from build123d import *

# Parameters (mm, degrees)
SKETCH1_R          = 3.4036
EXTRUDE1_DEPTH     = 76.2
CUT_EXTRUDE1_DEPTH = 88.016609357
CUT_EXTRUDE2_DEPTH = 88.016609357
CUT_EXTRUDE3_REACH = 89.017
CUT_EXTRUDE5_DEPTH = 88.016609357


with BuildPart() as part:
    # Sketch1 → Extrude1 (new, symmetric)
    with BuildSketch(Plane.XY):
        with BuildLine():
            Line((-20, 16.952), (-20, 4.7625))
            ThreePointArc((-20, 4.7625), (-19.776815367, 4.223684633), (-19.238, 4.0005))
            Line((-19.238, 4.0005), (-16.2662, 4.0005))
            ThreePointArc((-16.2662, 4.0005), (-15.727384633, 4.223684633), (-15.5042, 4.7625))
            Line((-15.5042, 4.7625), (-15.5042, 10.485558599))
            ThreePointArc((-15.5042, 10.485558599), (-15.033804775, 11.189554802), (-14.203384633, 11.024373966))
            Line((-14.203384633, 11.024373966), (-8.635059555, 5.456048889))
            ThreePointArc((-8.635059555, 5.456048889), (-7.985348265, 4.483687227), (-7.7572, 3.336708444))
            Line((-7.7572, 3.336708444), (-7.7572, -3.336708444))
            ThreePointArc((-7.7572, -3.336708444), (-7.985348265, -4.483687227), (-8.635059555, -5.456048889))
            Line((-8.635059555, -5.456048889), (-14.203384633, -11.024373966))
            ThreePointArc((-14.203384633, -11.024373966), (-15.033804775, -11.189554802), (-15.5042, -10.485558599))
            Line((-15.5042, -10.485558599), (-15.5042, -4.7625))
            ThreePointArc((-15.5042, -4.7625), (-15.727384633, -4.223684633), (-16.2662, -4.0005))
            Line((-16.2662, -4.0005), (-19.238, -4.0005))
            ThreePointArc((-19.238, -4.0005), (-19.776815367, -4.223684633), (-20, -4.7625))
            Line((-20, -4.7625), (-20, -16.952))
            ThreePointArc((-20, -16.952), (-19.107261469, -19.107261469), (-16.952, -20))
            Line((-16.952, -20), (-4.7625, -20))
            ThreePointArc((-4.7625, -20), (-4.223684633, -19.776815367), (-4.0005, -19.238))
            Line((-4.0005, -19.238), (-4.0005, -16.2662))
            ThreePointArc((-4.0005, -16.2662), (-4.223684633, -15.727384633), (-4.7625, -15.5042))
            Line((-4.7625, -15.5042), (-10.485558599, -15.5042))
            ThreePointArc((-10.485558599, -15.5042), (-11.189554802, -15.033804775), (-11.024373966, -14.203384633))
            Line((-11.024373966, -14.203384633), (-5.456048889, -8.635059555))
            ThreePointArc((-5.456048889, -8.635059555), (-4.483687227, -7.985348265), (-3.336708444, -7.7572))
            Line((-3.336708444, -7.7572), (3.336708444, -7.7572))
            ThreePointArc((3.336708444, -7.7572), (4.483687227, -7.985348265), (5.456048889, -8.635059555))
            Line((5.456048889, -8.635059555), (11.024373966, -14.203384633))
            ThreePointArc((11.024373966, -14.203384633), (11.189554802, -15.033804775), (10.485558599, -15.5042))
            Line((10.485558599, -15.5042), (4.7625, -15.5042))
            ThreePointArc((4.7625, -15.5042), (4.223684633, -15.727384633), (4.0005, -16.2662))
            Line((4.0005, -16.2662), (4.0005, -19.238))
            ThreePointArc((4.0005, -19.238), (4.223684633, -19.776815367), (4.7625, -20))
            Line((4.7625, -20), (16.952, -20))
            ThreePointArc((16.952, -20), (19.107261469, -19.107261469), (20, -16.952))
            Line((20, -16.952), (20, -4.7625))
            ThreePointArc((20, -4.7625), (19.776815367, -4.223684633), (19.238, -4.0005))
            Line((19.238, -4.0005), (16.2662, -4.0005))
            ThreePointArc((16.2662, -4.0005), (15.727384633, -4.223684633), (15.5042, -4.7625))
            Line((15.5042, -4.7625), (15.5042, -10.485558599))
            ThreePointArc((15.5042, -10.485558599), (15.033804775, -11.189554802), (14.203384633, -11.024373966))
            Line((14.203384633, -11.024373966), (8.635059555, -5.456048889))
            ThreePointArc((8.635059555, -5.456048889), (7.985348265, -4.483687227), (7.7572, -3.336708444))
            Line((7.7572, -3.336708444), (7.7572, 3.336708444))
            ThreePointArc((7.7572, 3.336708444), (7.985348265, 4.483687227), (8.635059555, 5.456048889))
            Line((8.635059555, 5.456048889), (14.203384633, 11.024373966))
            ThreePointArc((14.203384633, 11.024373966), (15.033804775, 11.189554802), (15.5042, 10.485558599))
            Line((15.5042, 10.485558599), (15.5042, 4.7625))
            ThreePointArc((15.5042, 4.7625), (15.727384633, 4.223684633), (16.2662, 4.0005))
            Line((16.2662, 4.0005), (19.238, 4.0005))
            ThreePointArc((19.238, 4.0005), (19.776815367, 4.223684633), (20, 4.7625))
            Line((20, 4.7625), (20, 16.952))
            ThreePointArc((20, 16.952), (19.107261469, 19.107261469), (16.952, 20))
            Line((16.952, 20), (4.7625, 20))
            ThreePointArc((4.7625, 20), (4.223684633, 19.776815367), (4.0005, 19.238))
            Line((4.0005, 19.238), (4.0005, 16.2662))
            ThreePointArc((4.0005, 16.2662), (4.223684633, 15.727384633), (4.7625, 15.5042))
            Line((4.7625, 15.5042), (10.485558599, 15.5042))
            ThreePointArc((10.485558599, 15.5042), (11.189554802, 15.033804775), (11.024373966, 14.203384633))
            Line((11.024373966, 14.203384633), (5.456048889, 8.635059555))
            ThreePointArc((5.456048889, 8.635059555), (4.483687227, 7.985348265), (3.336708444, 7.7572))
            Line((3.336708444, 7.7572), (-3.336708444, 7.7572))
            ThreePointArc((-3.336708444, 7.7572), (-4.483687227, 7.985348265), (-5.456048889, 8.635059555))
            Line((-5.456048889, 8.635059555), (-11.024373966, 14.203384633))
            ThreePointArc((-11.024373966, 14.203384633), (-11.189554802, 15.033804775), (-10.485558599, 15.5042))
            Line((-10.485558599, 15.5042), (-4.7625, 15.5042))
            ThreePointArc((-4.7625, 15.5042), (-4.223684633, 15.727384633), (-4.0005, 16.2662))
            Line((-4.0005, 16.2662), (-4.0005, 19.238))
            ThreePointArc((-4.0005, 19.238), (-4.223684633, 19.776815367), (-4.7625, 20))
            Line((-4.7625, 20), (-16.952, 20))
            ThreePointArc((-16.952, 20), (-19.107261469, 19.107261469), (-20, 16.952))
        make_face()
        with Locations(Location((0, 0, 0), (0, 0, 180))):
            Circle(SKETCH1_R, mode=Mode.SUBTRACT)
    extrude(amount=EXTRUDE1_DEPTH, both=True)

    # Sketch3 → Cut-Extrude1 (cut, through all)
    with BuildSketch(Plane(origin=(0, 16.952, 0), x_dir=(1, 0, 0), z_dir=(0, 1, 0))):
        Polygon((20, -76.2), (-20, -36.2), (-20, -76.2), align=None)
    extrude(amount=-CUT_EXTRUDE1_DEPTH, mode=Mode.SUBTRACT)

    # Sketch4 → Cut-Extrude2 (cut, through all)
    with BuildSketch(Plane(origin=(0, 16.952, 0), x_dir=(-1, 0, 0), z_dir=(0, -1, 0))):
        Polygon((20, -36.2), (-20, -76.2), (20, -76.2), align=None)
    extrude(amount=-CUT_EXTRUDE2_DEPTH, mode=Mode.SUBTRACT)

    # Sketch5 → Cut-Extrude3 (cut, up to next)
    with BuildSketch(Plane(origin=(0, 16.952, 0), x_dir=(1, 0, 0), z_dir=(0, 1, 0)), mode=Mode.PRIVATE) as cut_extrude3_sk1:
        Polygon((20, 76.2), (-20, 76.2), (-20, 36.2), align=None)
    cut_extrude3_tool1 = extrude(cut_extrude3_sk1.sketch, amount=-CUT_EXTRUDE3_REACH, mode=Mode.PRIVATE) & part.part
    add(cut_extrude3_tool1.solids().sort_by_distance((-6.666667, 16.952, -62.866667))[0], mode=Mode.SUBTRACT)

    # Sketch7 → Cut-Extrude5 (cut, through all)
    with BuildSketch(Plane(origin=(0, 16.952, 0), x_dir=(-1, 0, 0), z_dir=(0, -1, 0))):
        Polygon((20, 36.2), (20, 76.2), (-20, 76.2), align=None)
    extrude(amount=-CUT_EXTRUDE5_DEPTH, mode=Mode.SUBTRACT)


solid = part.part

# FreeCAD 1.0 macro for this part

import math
import FreeCAD as App
import Part
import Sketcher

V = App.Vector
Q = App.Units.Quantity


def add_polygon(sketch, points):
    """Adds a closed chain of lines whose ends are joined by coincident constraints."""
    first, n = sketch.GeometryCount, len(points)
    for a, b in zip(points, points[1:] + points[:1]):
        sketch.addGeometry(Part.LineSegment(App.Vector(*a, 0), App.Vector(*b, 0)), False)
    for i in range(n):
        sketch.addConstraint(Sketcher.Constraint("Coincident", first + i, 2, first + (i + 1) % n, 1))

doc = App.newDocument("Part")
body = doc.addObject("PartDesign::Body", "Body")

# Sketch on XY plane
sketch1 = body.newObject("Sketcher::SketchObject", "Sketch")
sketch1.AttachmentSupport = (doc.getObject("XY_Plane"), [""])
sketch1.MapMode = "FlatFace"
sketch1.addGeometry([
    Part.LineSegment(V(-20, 16.952, 0), V(-20, 4.7625, 0)),  # 0
    Part.ArcOfCircle(Part.Circle(V(-19.238, 4.7625, 0), V(0, 0, 1), 0.762), math.radians(-180), math.radians(-90)),  # 1
    Part.LineSegment(V(-19.238, 4.0005, 0), V(-16.2662, 4.0005, 0)),  # 2
    Part.ArcOfCircle(Part.Circle(V(-16.2662, 4.7625, 0), V(0, 0, 1), 0.762), math.radians(-90), math.radians(0)),  # 3
    Part.LineSegment(V(-15.5042, 4.7625, 0), V(-15.5042, 10.485559, 0)),  # 4
    Part.ArcOfCircle(Part.Circle(V(-14.7422, 10.485559, 0), V(0, 0, 1), 0.762), math.radians(45), math.radians(180)),  # 5
    Part.LineSegment(V(-14.203385, 11.024374, 0), V(-8.63506, 5.456049, 0)),  # 6
    Part.ArcOfCircle(Part.Circle(V(-10.7544, 3.336708, 0), V(0, 0, 1), 2.9972), math.radians(0), math.radians(45)),  # 7
    Part.LineSegment(V(-7.7572, 3.336708, 0), V(-7.7572, -3.336708, 0)),  # 8
    Part.ArcOfCircle(Part.Circle(V(-10.7544, -3.336708, 0), V(0, 0, 1), 2.9972), math.radians(-45), math.radians(0)),  # 9
    Part.LineSegment(V(-8.63506, -5.456049, 0), V(-14.203385, -11.024374, 0)),  # 10
    Part.ArcOfCircle(Part.Circle(V(-14.7422, -10.485559, 0), V(0, 0, 1), 0.762), math.radians(-180), math.radians(-45)),  # 11
    Part.LineSegment(V(-15.5042, -10.485559, 0), V(-15.5042, -4.7625, 0)),  # 12
    Part.ArcOfCircle(Part.Circle(V(-16.2662, -4.7625, 0), V(0, 0, 1), 0.762), math.radians(0), math.radians(90)),  # 13
    Part.LineSegment(V(-16.2662, -4.0005, 0), V(-19.238, -4.0005, 0)),  # 14
    Part.ArcOfCircle(Part.Circle(V(-19.238, -4.7625, 0), V(0, 0, 1), 0.762), math.radians(90), math.radians(180)),  # 15
    Part.LineSegment(V(-20, -4.7625, 0), V(-20, -16.952, 0)),  # 16
    Part.ArcOfCircle(Part.Circle(V(-16.952, -16.952, 0), V(0, 0, 1), 3.048), math.radians(180), math.radians(270)),  # 17
    Part.LineSegment(V(-16.952, -20, 0), V(-4.7625, -20, 0)),  # 18
    Part.ArcOfCircle(Part.Circle(V(-4.7625, -19.238, 0), V(0, 0, 1), 0.762), math.radians(-90), math.radians(0)),  # 19
    Part.LineSegment(V(-4.0005, -19.238, 0), V(-4.0005, -16.2662, 0)),  # 20
    Part.ArcOfCircle(Part.Circle(V(-4.7625, -16.2662, 0), V(0, 0, 1), 0.762), math.radians(0), math.radians(90)),  # 21
    Part.LineSegment(V(-4.7625, -15.5042, 0), V(-10.485559, -15.5042, 0)),  # 22
    Part.ArcOfCircle(Part.Circle(V(-10.485559, -14.7422, 0), V(0, 0, 1), 0.762), math.radians(135), math.radians(270)),  # 23
    Part.LineSegment(V(-11.024374, -14.203385, 0), V(-5.456049, -8.63506, 0)),  # 24
    Part.ArcOfCircle(Part.Circle(V(-3.336708, -10.7544, 0), V(0, 0, 1), 2.9972), math.radians(90), math.radians(135)),  # 25
    Part.LineSegment(V(-3.336708, -7.7572, 0), V(3.336708, -7.7572, 0)),  # 26
    Part.ArcOfCircle(Part.Circle(V(3.336708, -10.7544, 0), V(0, 0, 1), 2.9972), math.radians(45), math.radians(90)),  # 27
    Part.LineSegment(V(5.456049, -8.63506, 0), V(11.024374, -14.203385, 0)),  # 28
    Part.ArcOfCircle(Part.Circle(V(10.485559, -14.7422, 0), V(0, 0, 1), 0.762), math.radians(-90), math.radians(45)),  # 29
    Part.LineSegment(V(10.485559, -15.5042, 0), V(4.7625, -15.5042, 0)),  # 30
    Part.ArcOfCircle(Part.Circle(V(4.7625, -16.2662, 0), V(0, 0, 1), 0.762), math.radians(90), math.radians(180)),  # 31
    Part.LineSegment(V(4.0005, -16.2662, 0), V(4.0005, -19.238, 0)),  # 32
    Part.ArcOfCircle(Part.Circle(V(4.7625, -19.238, 0), V(0, 0, 1), 0.762), math.radians(-180), math.radians(-90)),  # 33
    Part.LineSegment(V(4.7625, -20, 0), V(16.952, -20, 0)),  # 34
    Part.ArcOfCircle(Part.Circle(V(16.952, -16.952, 0), V(0, 0, 1), 3.048), math.radians(-90), math.radians(0)),  # 35
    Part.LineSegment(V(20, -16.952, 0), V(20, -4.7625, 0)),  # 36
    Part.ArcOfCircle(Part.Circle(V(19.238, -4.7625, 0), V(0, 0, 1), 0.762), math.radians(0), math.radians(90)),  # 37
    Part.LineSegment(V(19.238, -4.0005, 0), V(16.2662, -4.0005, 0)),  # 38
    Part.ArcOfCircle(Part.Circle(V(16.2662, -4.7625, 0), V(0, 0, 1), 0.762), math.radians(90), math.radians(180)),  # 39
    Part.LineSegment(V(15.5042, -4.7625, 0), V(15.5042, -10.485559, 0)),  # 40
    Part.ArcOfCircle(Part.Circle(V(14.7422, -10.485559, 0), V(0, 0, 1), 0.762), math.radians(-135), math.radians(0)),  # 41
    Part.LineSegment(V(14.203385, -11.024374, 0), V(8.63506, -5.456049, 0)),  # 42
    Part.ArcOfCircle(Part.Circle(V(10.7544, -3.336708, 0), V(0, 0, 1), 2.9972), math.radians(-180), math.radians(-135)),  # 43
    Part.LineSegment(V(7.7572, -3.336708, 0), V(7.7572, 3.336708, 0)),  # 44
    Part.ArcOfCircle(Part.Circle(V(10.7544, 3.336708, 0), V(0, 0, 1), 2.9972), math.radians(135), math.radians(180)),  # 45
    Part.LineSegment(V(8.63506, 5.456049, 0), V(14.203385, 11.024374, 0)),  # 46
    Part.ArcOfCircle(Part.Circle(V(14.7422, 10.485559, 0), V(0, 0, 1), 0.762), math.radians(0), math.radians(135)),  # 47
    Part.LineSegment(V(15.5042, 10.485559, 0), V(15.5042, 4.7625, 0)),  # 48
    Part.ArcOfCircle(Part.Circle(V(16.2662, 4.7625, 0), V(0, 0, 1), 0.762), math.radians(-180), math.radians(-90)),  # 49
    Part.LineSegment(V(16.2662, 4.0005, 0), V(19.238, 4.0005, 0)),  # 50
    Part.ArcOfCircle(Part.Circle(V(19.238, 4.7625, 0), V(0, 0, 1), 0.762), math.radians(-90), math.radians(0)),  # 51
    Part.LineSegment(V(20, 4.7625, 0), V(20, 16.952, 0)),  # 52
    Part.ArcOfCircle(Part.Circle(V(16.952, 16.952, 0), V(0, 0, 1), 3.048), math.radians(0), math.radians(90)),  # 53
    Part.LineSegment(V(16.952, 20, 0), V(4.7625, 20, 0)),  # 54
    Part.ArcOfCircle(Part.Circle(V(4.7625, 19.238, 0), V(0, 0, 1), 0.762), math.radians(90), math.radians(180)),  # 55
    Part.LineSegment(V(4.0005, 19.238, 0), V(4.0005, 16.2662, 0)),  # 56
    Part.ArcOfCircle(Part.Circle(V(4.7625, 16.2662, 0), V(0, 0, 1), 0.762), math.radians(-180), math.radians(-90)),  # 57
    Part.LineSegment(V(4.7625, 15.5042, 0), V(10.485559, 15.5042, 0)),  # 58
    Part.ArcOfCircle(Part.Circle(V(10.485559, 14.7422, 0), V(0, 0, 1), 0.762), math.radians(-45), math.radians(90)),  # 59
    Part.LineSegment(V(11.024374, 14.203385, 0), V(5.456049, 8.63506, 0)),  # 60
    Part.ArcOfCircle(Part.Circle(V(3.336708, 10.7544, 0), V(0, 0, 1), 2.9972), math.radians(-90), math.radians(-45)),  # 61
    Part.LineSegment(V(3.336708, 7.7572, 0), V(-3.336708, 7.7572, 0)),  # 62
    Part.ArcOfCircle(Part.Circle(V(-3.336708, 10.7544, 0), V(0, 0, 1), 2.9972), math.radians(-135), math.radians(-90)),  # 63
    Part.LineSegment(V(-5.456049, 8.63506, 0), V(-11.024374, 14.203385, 0)),  # 64
    Part.ArcOfCircle(Part.Circle(V(-10.485559, 14.7422, 0), V(0, 0, 1), 0.762), math.radians(90), math.radians(225)),  # 65
    Part.LineSegment(V(-10.485559, 15.5042, 0), V(-4.7625, 15.5042, 0)),  # 66
    Part.ArcOfCircle(Part.Circle(V(-4.7625, 16.2662, 0), V(0, 0, 1), 0.762), math.radians(-90), math.radians(0)),  # 67
    Part.LineSegment(V(-4.0005, 16.2662, 0), V(-4.0005, 19.238, 0)),  # 68
    Part.ArcOfCircle(Part.Circle(V(-4.7625, 19.238, 0), V(0, 0, 1), 0.762), math.radians(0), math.radians(90)),  # 69
    Part.LineSegment(V(-4.7625, 20, 0), V(-16.952, 20, 0)),  # 70
    Part.ArcOfCircle(Part.Circle(V(-16.952, 16.952, 0), V(0, 0, 1), 3.048), math.radians(90), math.radians(180)),  # 71
    Part.Circle(V(0, 0, 0), V(0, 0, 1), 3.4036),  # 72
], False)
sketch1.addConstraint([
    Sketcher.Constraint("Tangent", 0, 2, 1, 1),
    Sketcher.Constraint("Tangent", 1, 2, 2, 1),
    Sketcher.Constraint("Tangent", 2, 2, 3, 1),
    Sketcher.Constraint("Tangent", 3, 2, 4, 1),
    Sketcher.Constraint("Tangent", 4, 2, 5, 2),
    Sketcher.Constraint("Tangent", 5, 1, 6, 1),
    Sketcher.Constraint("Tangent", 6, 2, 7, 2),
    Sketcher.Constraint("Tangent", 7, 1, 8, 1),
    Sketcher.Constraint("Tangent", 8, 2, 9, 2),
    Sketcher.Constraint("Tangent", 9, 1, 10, 1),
    Sketcher.Constraint("Tangent", 10, 2, 11, 2),
    Sketcher.Constraint("Tangent", 11, 1, 12, 1),
    Sketcher.Constraint("Tangent", 12, 2, 13, 1),
    Sketcher.Constraint("Tangent", 13, 2, 14, 1),
    Sketcher.Constraint("Tangent", 14, 2, 15, 1),
    Sketcher.Constraint("Tangent", 15, 2, 16, 1),
    Sketcher.Constraint("Tangent", 16, 2, 17, 1),
    Sketcher.Constraint("Tangent", 17, 2, 18, 1),
    Sketcher.Constraint("Tangent", 18, 2, 19, 1),
    Sketcher.Constraint("Tangent", 19, 2, 20, 1),
    Sketcher.Constraint("Tangent", 20, 2, 21, 1),
    Sketcher.Constraint("Tangent", 21, 2, 22, 1),
    Sketcher.Constraint("Tangent", 22, 2, 23, 2),
    Sketcher.Constraint("Tangent", 23, 1, 24, 1),
    Sketcher.Constraint("Tangent", 24, 2, 25, 2),
    Sketcher.Constraint("Tangent", 25, 1, 26, 1),
    Sketcher.Constraint("Tangent", 26, 2, 27, 2),
    Sketcher.Constraint("Tangent", 27, 1, 28, 1),
    Sketcher.Constraint("Tangent", 28, 2, 29, 2),
    Sketcher.Constraint("Tangent", 29, 1, 30, 1),
    Sketcher.Constraint("Tangent", 30, 2, 31, 1),
    Sketcher.Constraint("Tangent", 31, 2, 32, 1),
    Sketcher.Constraint("Tangent", 32, 2, 33, 1),
    Sketcher.Constraint("Tangent", 33, 2, 34, 1),
    Sketcher.Constraint("Tangent", 34, 2, 35, 1),
    Sketcher.Constraint("Tangent", 35, 2, 36, 1),
    Sketcher.Constraint("Tangent", 36, 2, 37, 1),
    Sketcher.Constraint("Tangent", 37, 2, 38, 1),
    Sketcher.Constraint("Tangent", 38, 2, 39, 1),
    Sketcher.Constraint("Tangent", 39, 2, 40, 1),
    Sketcher.Constraint("Tangent", 40, 2, 41, 2),
    Sketcher.Constraint("Tangent", 41, 1, 42, 1),
    Sketcher.Constraint("Tangent", 42, 2, 43, 2),
    Sketcher.Constraint("Tangent", 43, 1, 44, 1),
    Sketcher.Constraint("Tangent", 44, 2, 45, 2),
    Sketcher.Constraint("Tangent", 45, 1, 46, 1),
    Sketcher.Constraint("Tangent", 46, 2, 47, 2),
    Sketcher.Constraint("Tangent", 47, 1, 48, 1),
    Sketcher.Constraint("Tangent", 48, 2, 49, 1),
    Sketcher.Constraint("Tangent", 49, 2, 50, 1),
    Sketcher.Constraint("Tangent", 50, 2, 51, 1),
    Sketcher.Constraint("Tangent", 51, 2, 52, 1),
    Sketcher.Constraint("Tangent", 52, 2, 53, 1),
    Sketcher.Constraint("Tangent", 53, 2, 54, 1),
    Sketcher.Constraint("Tangent", 54, 2, 55, 1),
    Sketcher.Constraint("Tangent", 55, 2, 56, 1),
    Sketcher.Constraint("Tangent", 56, 2, 57, 1),
    Sketcher.Constraint("Tangent", 57, 2, 58, 1),
    Sketcher.Constraint("Tangent", 58, 2, 59, 2),
    Sketcher.Constraint("Tangent", 59, 1, 60, 1),
    Sketcher.Constraint("Tangent", 60, 2, 61, 2),
    Sketcher.Constraint("Tangent", 61, 1, 62, 1),
    Sketcher.Constraint("Tangent", 62, 2, 63, 2),
    Sketcher.Constraint("Tangent", 63, 1, 64, 1),
    Sketcher.Constraint("Tangent", 64, 2, 65, 2),
    Sketcher.Constraint("Tangent", 65, 1, 66, 1),
    Sketcher.Constraint("Tangent", 66, 2, 67, 1),
    Sketcher.Constraint("Tangent", 67, 2, 68, 1),
    Sketcher.Constraint("Tangent", 68, 2, 69, 1),
    Sketcher.Constraint("Tangent", 69, 2, 70, 1),
    Sketcher.Constraint("Tangent", 70, 2, 71, 1),
    Sketcher.Constraint("Tangent", 71, 2, 0, 1),
    Sketcher.Constraint("Vertical", 0),
    Sketcher.Constraint("Horizontal", 2),
    Sketcher.Constraint("Vertical", 4),
    Sketcher.Constraint("Vertical", 8),
    Sketcher.Constraint("Vertical", 12),
    Sketcher.Constraint("Horizontal", 14),
    Sketcher.Constraint("Vertical", 16),
    Sketcher.Constraint("Horizontal", 18),
    Sketcher.Constraint("Vertical", 20),
    Sketcher.Constraint("Horizontal", 22),
    Sketcher.Constraint("Horizontal", 26),
    Sketcher.Constraint("Horizontal", 30),
    Sketcher.Constraint("Vertical", 32),
    Sketcher.Constraint("Horizontal", 34),
    Sketcher.Constraint("Vertical", 36),
    Sketcher.Constraint("Horizontal", 38),
    Sketcher.Constraint("Vertical", 40),
    Sketcher.Constraint("Vertical", 44),
    Sketcher.Constraint("Vertical", 48),
    Sketcher.Constraint("Horizontal", 50),
    Sketcher.Constraint("Vertical", 52),
    Sketcher.Constraint("Horizontal", 54),
    Sketcher.Constraint("Vertical", 56),
    Sketcher.Constraint("Horizontal", 58),
    Sketcher.Constraint("Horizontal", 62),
    Sketcher.Constraint("Horizontal", 66),
    Sketcher.Constraint("Vertical", 68),
    Sketcher.Constraint("Horizontal", 70),
    Sketcher.Constraint("Coincident", 72, 3, -1, 1),
    Sketcher.Constraint("Equal", 1, 3),
    Sketcher.Constraint("Equal", 3, 5),
    Sketcher.Constraint("Equal", 7, 9),
    Sketcher.Constraint("Equal", 5, 11),
    Sketcher.Constraint("Equal", 11, 13),
    Sketcher.Constraint("Equal", 13, 15),
    Sketcher.Constraint("Equal", 15, 19),
    Sketcher.Constraint("Equal", 19, 21),
    Sketcher.Constraint("Equal", 21, 23),
    Sketcher.Constraint("Equal", 9, 25),
    Sketcher.Constraint("Equal", 25, 27),
    Sketcher.Constraint("Equal", 23, 29),
    Sketcher.Constraint("Equal", 29, 31),
    Sketcher.Constraint("Equal", 31, 33),
    Sketcher.Constraint("Equal", 17, 35),
    Sketcher.Constraint("Equal", 33, 37),
    Sketcher.Constraint("Equal", 37, 39),
    Sketcher.Constraint("Equal", 39, 41),
    Sketcher.Constraint("Equal", 27, 43),
    Sketcher.Constraint("Equal", 43, 45),
    Sketcher.Constraint("Equal", 41, 47),
    Sketcher.Constraint("Equal", 47, 49),
    Sketcher.Constraint("Equal", 49, 51),
    Sketcher.Constraint("Equal", 35, 53),
    Sketcher.Constraint("Equal", 51, 55),
    Sketcher.Constraint("Equal", 55, 57),
    Sketcher.Constraint("Equal", 57, 59),
    Sketcher.Constraint("Equal", 45, 61),
    Sketcher.Constraint("Equal", 61, 63),
    Sketcher.Constraint("Equal", 59, 65),
    Sketcher.Constraint("Equal", 65, 67),
    Sketcher.Constraint("Equal", 67, 69),
    Sketcher.Constraint("Equal", 53, 71),
    Sketcher.Constraint("Symmetric", 1, 3, 37, 3, -1, 1),
    Sketcher.Constraint("Symmetric", 5, 3, 41, 3, -1, 1),
    Sketcher.Constraint("Symmetric", 7, 3, 43, 3, -1, 1),
    Sketcher.Constraint("Symmetric", 11, 3, 47, 3, -1, 1),
    Sketcher.Constraint("Symmetric", 15, 3, 51, 3, -1, 1),
    Sketcher.Constraint("Symmetric", 19, 3, 55, 3, -1, 1),
    Sketcher.Constraint("Symmetric", 23, 3, 59, 3, -1, 1),
    Sketcher.Constraint("Symmetric", 25, 3, 61, 3, -1, 1),
    Sketcher.Constraint("Symmetric", 29, 3, 65, 3, -1, 1),
    Sketcher.Constraint("Symmetric", 33, 3, 69, 3, -1, 1),
    Sketcher.Constraint("Symmetric", 23, 3, 29, 3, -2),
    Sketcher.Constraint("Symmetric", 19, 3, 33, 3, -2),
    Sketcher.Constraint("Symmetric", 15, 3, 37, 3, -2),
    Sketcher.Constraint("Symmetric", 11, 3, 41, 3, -2),
    Sketcher.Constraint("Perpendicular", 6, 10),
    Sketcher.Constraint("Parallel", 10, 24),
    Sketcher.Constraint("Perpendicular", 24, 28),
    Sketcher.Constraint("Perpendicular", 42, 46),
    Sketcher.Constraint("Perpendicular", 60, 64),
    Sketcher.Constraint("Horizontal", 9, 3, 43, 3),
    Sketcher.Constraint("Equal", 70, 0),
    Sketcher.Constraint("Equal", 66, 4),
    Sketcher.Constraint("Equal", 62, 8),
    Sketcher.Constraint("Equal", 50, 20),
    Sketcher.Constraint("Equal", 10, 24),
    Sketcher.Constraint("Radius", 1, Q("0.03 in")),
    Sketcher.Constraint("Radius", 17, Q("0.12 in")),
    Sketcher.Constraint("Diameter", 72, Q("0.268 in")),
    Sketcher.Constraint("Radius", 7, Q("0.118 in")),
    Sketcher.Constraint("DistanceX", 2, 1, 2, 2, Q("0.117 in")),
    Sketcher.Constraint("DistanceY", -1, 1, 1, 3, Q("0.1875 in")),
    Sketcher.Constraint("DistanceX", 18, 1, 18, 2, Q("12.1895 mm")),
    Sketcher.Constraint("Distance", 6, Q("7.874801 mm")),
    Sketcher.Constraint("DistanceX", 22, 2, 22, 1, Q("5.723059 mm")),
])
pad1 = body.newObject("PartDesign::Pad", "Pad")
pad1.Profile = sketch1
pad1.Length = Q("6 in")
pad1.Midplane = True

# Sketch on XZ plane
sketch2 = body.newObject("Sketcher::SketchObject", "Sketch001")
sketch2.AttachmentSupport = (doc.getObject("XZ_Plane"), [""])
sketch2.MapMode = "FlatFace"
sketch2.AttachmentOffset = App.Placement(V(0, 0, -16.952), App.Rotation())
add_polygon(sketch2, [(20, 76.2), (-20, 36.2), (-20, 76.2)])  # lines 0-2
sketch2.addConstraint([
    Sketcher.Constraint("Vertical", 1),
    Sketcher.Constraint("Horizontal", 2),
    Sketcher.Constraint("Equal", 2, 1),
    Sketcher.Constraint("DistanceY", -1, 1, 1, 2, Q("3 in")),
    Sketcher.Constraint("DistanceX", 2, 1, 2, 2, Q("40 mm")),
    Sketcher.Constraint("DistanceX", 0, 2, -1, 1, Q("20 mm")),
])
pocket1 = body.newObject("PartDesign::Pocket", "Pocket")
pocket1.Profile = sketch2
pocket1.Type = "ThroughAll"
pocket1.Reversed = True

# Sketch on XZ plane
sketch3 = body.newObject("Sketcher::SketchObject", "Sketch002")
sketch3.AttachmentSupport = (doc.getObject("XZ_Plane"), [""])
sketch3.MapMode = "FlatFace"
sketch3.AttachmentOffset = App.Placement(V(0, 0, -16.952), App.Rotation())
add_polygon(sketch3, [(-20, 36.2), (20, 76.2), (-20, 76.2)])  # lines 0-2
sketch3.addConstraint([
    Sketcher.Constraint("Horizontal", 1),
    Sketcher.Constraint("Vertical", 2),
    Sketcher.Constraint("Equal", 1, 2),
    Sketcher.Constraint("DistanceY", -1, 1, 0, 2, Q("3 in")),
    Sketcher.Constraint("DistanceX", 1, 2, 1, 1, Q("40 mm")),
    Sketcher.Constraint("DistanceX", -1, 1, 0, 2, Q("20 mm")),
])
pocket2 = body.newObject("PartDesign::Pocket", "Pocket001")
pocket2.Profile = sketch3
pocket2.Type = "ThroughAll"

# Sketch on XZ plane
sketch4 = body.newObject("Sketcher::SketchObject", "Sketch003")
sketch4.AttachmentSupport = (doc.getObject("XZ_Plane"), [""])
sketch4.MapMode = "FlatFace"
sketch4.AttachmentOffset = App.Placement(V(0, 0, -16.952), App.Rotation())
add_polygon(sketch4, [(20, -76.2), (-20, -76.2), (-20, -36.2)])  # lines 0-2
sketch4.addConstraint([
    Sketcher.Constraint("Horizontal", 0),
    Sketcher.Constraint("Vertical", 1),
    Sketcher.Constraint("Equal", 0, 1),
    Sketcher.Constraint("DistanceY", 0, 2, -1, 1, Q("3 in")),
    Sketcher.Constraint("DistanceX", 0, 2, 0, 1, Q("40 mm")),
    Sketcher.Constraint("DistanceX", 0, 2, -1, 1, Q("20 mm")),
])
pocket3 = body.newObject("PartDesign::Pocket", "Pocket002")
pocket3.Profile = sketch4
pocket3.Length = 36.952
pocket3.Reversed = True

# Sketch on XZ plane
sketch5 = body.newObject("Sketcher::SketchObject", "Sketch004")
sketch5.AttachmentSupport = (doc.getObject("XZ_Plane"), [""])
sketch5.MapMode = "FlatFace"
sketch5.AttachmentOffset = App.Placement(V(0, 0, -16.952), App.Rotation())
add_polygon(sketch5, [(-20, -36.2), (-20, -76.2), (20, -76.2)])  # lines 0-2
sketch5.addConstraint([
    Sketcher.Constraint("Vertical", 0),
    Sketcher.Constraint("Horizontal", 1),
    Sketcher.Constraint("Equal", 1, 0),
    Sketcher.Constraint("DistanceY", 0, 2, -1, 1, Q("3 in")),
    Sketcher.Constraint("DistanceX", 1, 1, 1, 2, Q("40 mm")),
    Sketcher.Constraint("DistanceX", 0, 2, -1, 1, Q("20 mm")),
])
pocket4 = body.newObject("PartDesign::Pocket", "Pocket003")
pocket4.Profile = sketch5
pocket4.Type = "ThroughAll"

doc.recompute()
